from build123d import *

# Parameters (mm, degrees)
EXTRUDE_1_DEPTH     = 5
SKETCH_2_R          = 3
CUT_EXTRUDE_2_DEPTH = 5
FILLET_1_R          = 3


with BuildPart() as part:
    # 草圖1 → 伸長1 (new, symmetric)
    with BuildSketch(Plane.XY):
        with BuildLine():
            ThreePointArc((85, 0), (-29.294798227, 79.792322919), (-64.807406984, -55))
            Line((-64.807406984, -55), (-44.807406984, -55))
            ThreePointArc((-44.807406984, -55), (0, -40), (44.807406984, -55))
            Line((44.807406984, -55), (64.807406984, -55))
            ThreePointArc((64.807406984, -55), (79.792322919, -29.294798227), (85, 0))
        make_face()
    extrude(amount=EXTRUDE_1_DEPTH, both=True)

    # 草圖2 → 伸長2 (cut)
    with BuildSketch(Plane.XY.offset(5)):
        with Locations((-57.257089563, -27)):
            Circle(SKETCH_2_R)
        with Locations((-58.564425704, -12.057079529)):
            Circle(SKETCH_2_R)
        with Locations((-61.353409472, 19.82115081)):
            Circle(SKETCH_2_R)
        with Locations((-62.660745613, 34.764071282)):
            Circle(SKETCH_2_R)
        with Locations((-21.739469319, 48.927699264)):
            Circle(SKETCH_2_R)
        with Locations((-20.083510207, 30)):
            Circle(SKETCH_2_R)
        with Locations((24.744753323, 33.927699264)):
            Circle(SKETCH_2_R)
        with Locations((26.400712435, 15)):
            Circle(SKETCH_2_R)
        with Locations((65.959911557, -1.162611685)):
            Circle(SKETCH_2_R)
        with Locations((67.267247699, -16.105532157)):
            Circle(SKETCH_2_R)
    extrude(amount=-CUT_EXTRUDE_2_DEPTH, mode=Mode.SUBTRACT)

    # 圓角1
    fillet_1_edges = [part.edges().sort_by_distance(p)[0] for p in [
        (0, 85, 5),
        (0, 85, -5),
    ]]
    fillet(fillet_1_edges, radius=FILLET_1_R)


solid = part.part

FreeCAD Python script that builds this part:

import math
import FreeCAD as App
import Part
import Sketcher


def edges_at(feature, points):
    """Names of the edges that pass closest to the given points."""
    edges = feature.Shape.Edges
    near = lambda p: min(range(len(edges)), key=lambda i: edges[i].distToShape(Part.Vertex(*p))[0])
    return sorted({f"Edge{near(p) + 1}" for p in points})

doc = App.newDocument("Part")
body = doc.addObject("PartDesign::Body", "Body")

# Sketch on XY plane
sketch1 = body.newObject("Sketcher::SketchObject", "Sketch")
sketch1.AttachmentSupport = (doc.getObject("XY_Plane"), [""])
sketch1.MapMode = "FlatFace"
sketch1.addGeometry([
    Part.ArcOfCircle(Part.Circle(App.Vector(0, 0, 0), App.Vector(0, 0, 1), 85), math.radians(0), math.radians(220.320215)),  # 0
    Part.LineSegment(App.Vector(-64.807407, -55, 0), App.Vector(-44.807407, -55, 0)),  # 1
    Part.ArcOfCircle(Part.Circle(App.Vector(0, -114.423457, 0), App.Vector(0, 0, 1), 74.423457), math.radians(52.982403), math.radians(127.017597)),  # 2
    Part.LineSegment(App.Vector(44.807407, -55, 0), App.Vector(64.807407, -55, 0)),  # 3
    Part.ArcOfCircle(Part.Circle(App.Vector(0, 0, 0), App.Vector(0, 0, 1), 85), math.radians(-40.320215), math.radians(0)),  # 4
], False)
sketch1.addConstraint([
    Sketcher.Constraint("Coincident", 0, 2, 1, 1),
    Sketcher.Constraint("Coincident", 1, 2, 2, 2),
    Sketcher.Constraint("Coincident", 2, 1, 3, 1),
    Sketcher.Constraint("Coincident", 3, 2, 4, 1),
    Sketcher.Constraint("Tangent", 4, 2, 0, 1),
    Sketcher.Constraint("Horizontal", 1),
    Sketcher.Constraint("Horizontal", 3),
    Sketcher.Constraint("Coincident", 0, 3, -1, 1),
    Sketcher.Constraint("Equal", 0, 4),
    Sketcher.Constraint("Symmetric", 1, 2, 2, 1, -2),
    Sketcher.Constraint("PointOnObject", 4, 2, -1),
    Sketcher.Constraint("Radius", 0, 85.0),
    Sketcher.Constraint("DistanceX", 1, 1, 1, 2, 20.0),
    Sketcher.Constraint("DistanceY", 0, 2, -1, 1, 55.0),
    Sketcher.Constraint("Radius", 2, 74.423457),
])
pad1 = body.newObject("PartDesign::Pad", "Pad")
pad1.Profile = sketch1
pad1.Length = 10
pad1.Midplane = True

# Sketch on XY plane
sketch2 = body.newObject("Sketcher::SketchObject", "Sketch001")
sketch2.AttachmentSupport = (doc.getObject("XY_Plane"), [""])
sketch2.MapMode = "FlatFace"
sketch2.AttachmentOffset = App.Placement(App.Vector(0, 0, 5), App.Rotation())
sketch2.addGeometry([
    Part.Circle(App.Vector(-57.25709, -27, 0), App.Vector(0, 0, 1), 3),  # 0
    Part.Circle(App.Vector(-58.564426, -12.05708, 0), App.Vector(0, 0, 1), 3),  # 1
    Part.Circle(App.Vector(-61.353409, 19.821151, 0), App.Vector(0, 0, 1), 3),  # 2
    Part.Circle(App.Vector(-62.660746, 34.764071, 0), App.Vector(0, 0, 1), 3),  # 3
    Part.Circle(App.Vector(-21.739469, 48.927699, 0), App.Vector(0, 0, 1), 3),  # 4
    Part.Circle(App.Vector(-20.08351, 30, 0), App.Vector(0, 0, 1), 3),  # 5
    Part.Circle(App.Vector(24.744753, 33.927699, 0), App.Vector(0, 0, 1), 3),  # 6
    Part.Circle(App.Vector(26.400712, 15, 0), App.Vector(0, 0, 1), 3),  # 7
    Part.Circle(App.Vector(65.959912, -1.162612, 0), App.Vector(0, 0, 1), 3),  # 8
    Part.Circle(App.Vector(67.267248, -16.105532, 0), App.Vector(0, 0, 1), 3),  # 9
], False)
sketch2.addConstraint([
    Sketcher.Constraint("Equal", 0, 1),
    Sketcher.Constraint("Equal", 1, 2),
    Sketcher.Constraint("Equal", 2, 3),
    Sketcher.Constraint("Equal", 3, 4),
    Sketcher.Constraint("Equal", 4, 5),
    Sketcher.Constraint("Equal", 5, 6),
    Sketcher.Constraint("Equal", 6, 7),
    Sketcher.Constraint("Equal", 7, 8),
    Sketcher.Constraint("Equal", 8, 9),
    Sketcher.Constraint("Diameter", 0, 6.0),
    Sketcher.Constraint("DistanceY", 0, 3, -1, 1, 27.0),
    Sketcher.Constraint("DistanceY", -1, 1, 5, 3, 30.0),
    Sketcher.Constraint("DistanceY", -1, 1, 7, 3, 15.0),
    Sketcher.Constraint("DistanceY", 6, 3, 4, 3, 15.0),
    Sketcher.Constraint("DistanceY", -1, 1, 4, 3, 48.927699),
    Sketcher.Constraint("DistanceX", 2, 3, 5, 3, 41.269899),
    Sketcher.Constraint("DistanceX", 3, 3, 6, 3, 87.405499),
    Sketcher.Constraint("DistanceX", 7, 3, 8, 3, 39.559199),
    Sketcher.Constraint("DistanceX", 0, 3, -1, 1, 57.25709),
    Sketcher.Constraint("DistanceY", 1, 3, -1, 1, 12.05708),
    Sketcher.Constraint("DistanceX", 2, 3, -1, 1, 61.353409),
    Sketcher.Constraint("DistanceY", -1, 1, 2, 3, 19.821151),
    Sketcher.Constraint("DistanceY", -1, 1, 3, 3, 34.764071),
    Sketcher.Constraint("DistanceX", 4, 3, -1, 1, 21.739469),
    Sketcher.Constraint("DistanceX", -1, 1, 8, 3, 65.959912),
    Sketcher.Constraint("DistanceY", 8, 3, -1, 1, 1.162612),
    Sketcher.Constraint("DistanceX", 3, 3, 1, 3, 4.09632),
    Sketcher.Constraint("DistanceX", 6, 3, 7, 3, 1.655959),
    Sketcher.Constraint("DistanceY", 9, 3, 8, 3, 14.94292),
    Sketcher.Constraint("DistanceX", -1, 1, 9, 3, 67.267248),
])
pocket1 = body.newObject("PartDesign::Pocket", "Pocket")
pocket1.Profile = sketch2
pocket1.Length = 5
doc.recompute()

fillet = body.newObject("PartDesign::Fillet", "Fillet")
fillet.Base = (pocket1, edges_at(pocket1, [(-29.295, 79.792, 5), (-29.295, 79.792, -5)]))
fillet.Radius = 3

doc.recompute()
